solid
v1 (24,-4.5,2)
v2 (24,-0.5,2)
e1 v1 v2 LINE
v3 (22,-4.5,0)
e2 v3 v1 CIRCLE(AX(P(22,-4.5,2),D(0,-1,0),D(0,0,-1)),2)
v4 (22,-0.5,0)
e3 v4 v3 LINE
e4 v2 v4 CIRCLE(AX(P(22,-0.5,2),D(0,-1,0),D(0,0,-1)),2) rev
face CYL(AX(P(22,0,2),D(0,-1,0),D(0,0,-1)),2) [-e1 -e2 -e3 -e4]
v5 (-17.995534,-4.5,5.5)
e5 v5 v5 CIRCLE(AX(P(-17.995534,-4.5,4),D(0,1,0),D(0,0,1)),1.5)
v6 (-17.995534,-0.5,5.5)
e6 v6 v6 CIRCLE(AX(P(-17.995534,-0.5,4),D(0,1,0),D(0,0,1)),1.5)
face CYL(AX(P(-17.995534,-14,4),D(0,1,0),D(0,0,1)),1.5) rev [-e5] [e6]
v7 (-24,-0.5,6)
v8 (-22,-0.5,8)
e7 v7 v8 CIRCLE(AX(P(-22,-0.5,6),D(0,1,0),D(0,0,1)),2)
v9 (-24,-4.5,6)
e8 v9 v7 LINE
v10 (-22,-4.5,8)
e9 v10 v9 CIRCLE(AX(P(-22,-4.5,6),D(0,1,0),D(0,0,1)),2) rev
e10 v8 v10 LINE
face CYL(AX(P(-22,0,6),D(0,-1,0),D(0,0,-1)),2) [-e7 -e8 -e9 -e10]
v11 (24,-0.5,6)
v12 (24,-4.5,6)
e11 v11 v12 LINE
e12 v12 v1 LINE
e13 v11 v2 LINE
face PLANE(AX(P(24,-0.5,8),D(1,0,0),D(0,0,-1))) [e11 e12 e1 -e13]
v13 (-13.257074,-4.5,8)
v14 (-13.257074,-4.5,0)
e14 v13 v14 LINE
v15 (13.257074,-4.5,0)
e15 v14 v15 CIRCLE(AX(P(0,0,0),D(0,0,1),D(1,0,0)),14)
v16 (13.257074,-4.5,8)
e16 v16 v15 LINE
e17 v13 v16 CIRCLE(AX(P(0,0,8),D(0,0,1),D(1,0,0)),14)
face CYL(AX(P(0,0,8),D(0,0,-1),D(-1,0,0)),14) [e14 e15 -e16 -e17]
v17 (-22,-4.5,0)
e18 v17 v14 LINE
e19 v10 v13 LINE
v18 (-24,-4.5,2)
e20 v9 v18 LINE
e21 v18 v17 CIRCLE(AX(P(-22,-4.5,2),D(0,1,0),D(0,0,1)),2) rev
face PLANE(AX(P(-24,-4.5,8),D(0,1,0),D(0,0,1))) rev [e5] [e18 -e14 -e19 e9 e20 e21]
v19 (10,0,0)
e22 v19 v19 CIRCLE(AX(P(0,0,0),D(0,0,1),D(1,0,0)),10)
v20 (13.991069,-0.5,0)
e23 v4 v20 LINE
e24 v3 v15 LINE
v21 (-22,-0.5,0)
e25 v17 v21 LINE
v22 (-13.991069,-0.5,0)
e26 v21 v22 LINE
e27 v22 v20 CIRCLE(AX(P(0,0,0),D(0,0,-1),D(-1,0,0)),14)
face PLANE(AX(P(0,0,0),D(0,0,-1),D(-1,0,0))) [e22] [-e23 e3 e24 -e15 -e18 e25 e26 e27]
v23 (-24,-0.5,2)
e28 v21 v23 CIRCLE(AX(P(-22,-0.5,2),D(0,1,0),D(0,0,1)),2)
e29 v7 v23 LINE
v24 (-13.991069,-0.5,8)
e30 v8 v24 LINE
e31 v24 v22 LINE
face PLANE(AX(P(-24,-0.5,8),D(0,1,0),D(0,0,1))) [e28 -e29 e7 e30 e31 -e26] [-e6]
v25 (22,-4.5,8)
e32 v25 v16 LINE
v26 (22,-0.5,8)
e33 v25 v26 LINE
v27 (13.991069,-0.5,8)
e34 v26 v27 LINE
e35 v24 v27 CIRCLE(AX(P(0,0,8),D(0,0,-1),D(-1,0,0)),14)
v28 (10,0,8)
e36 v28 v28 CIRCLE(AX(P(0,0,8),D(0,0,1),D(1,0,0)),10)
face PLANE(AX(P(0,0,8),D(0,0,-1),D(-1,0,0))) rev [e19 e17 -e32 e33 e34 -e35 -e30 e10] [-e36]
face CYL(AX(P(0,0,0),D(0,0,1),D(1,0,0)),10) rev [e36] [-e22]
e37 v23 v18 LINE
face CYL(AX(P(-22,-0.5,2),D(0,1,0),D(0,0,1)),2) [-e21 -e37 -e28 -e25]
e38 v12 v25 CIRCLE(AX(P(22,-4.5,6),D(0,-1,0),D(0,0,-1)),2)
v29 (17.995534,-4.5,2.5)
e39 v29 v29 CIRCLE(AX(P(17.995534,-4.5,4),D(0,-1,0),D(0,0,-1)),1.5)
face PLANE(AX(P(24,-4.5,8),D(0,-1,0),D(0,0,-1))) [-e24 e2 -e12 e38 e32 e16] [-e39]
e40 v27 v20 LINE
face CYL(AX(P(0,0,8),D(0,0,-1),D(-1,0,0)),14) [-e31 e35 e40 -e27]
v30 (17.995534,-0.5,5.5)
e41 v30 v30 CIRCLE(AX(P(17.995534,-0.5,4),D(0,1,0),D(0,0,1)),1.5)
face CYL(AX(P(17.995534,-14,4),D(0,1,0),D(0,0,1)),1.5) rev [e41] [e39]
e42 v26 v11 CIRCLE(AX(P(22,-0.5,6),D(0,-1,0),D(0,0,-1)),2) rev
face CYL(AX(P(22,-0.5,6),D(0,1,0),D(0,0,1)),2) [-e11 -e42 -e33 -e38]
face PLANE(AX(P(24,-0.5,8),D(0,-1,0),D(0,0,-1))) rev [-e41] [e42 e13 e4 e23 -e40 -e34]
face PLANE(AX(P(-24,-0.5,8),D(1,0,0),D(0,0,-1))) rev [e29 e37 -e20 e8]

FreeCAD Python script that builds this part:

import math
import FreeCAD as App
import Part
import Sketcher

V = App.Vector


def edges_at(feature, points):
    """Names of the edges that pass closest to the given points."""
    edges = feature.Shape.Edges
    near = lambda p: min(range(len(edges)), key=lambda i: edges[i].distToShape(Part.Vertex(*p))[0])
    return sorted({f"Edge{near(p) + 1}" for p in points})

doc = App.newDocument("Part")
body = doc.addObject("PartDesign::Body", "Body")

sketch1 = body.newObject("Sketcher::SketchObject", "Sketch")
sketch1.AttachmentSupport = (doc.getObject("XY_Plane"), [""])
sketch1.MapMode = "FlatFace"
sketch1.addGeometry(Part.LineSegment(V(-14, -0.5, 0), V(-24, -0.5, 0)), False)
sketch1.addGeometry(Part.LineSegment(V(-24, -0.5, 0), V(-24, -4.5, 0)), False)
sketch1.addGeometry(Part.LineSegment(V(-24, -4.5, 0), V(-13.3, -4.5, 0)), False)
sketch1.addGeometry(Part.ArcOfCircle(Part.Circle(V(0, 0, 0), V(0, 0, 1), 14), math.radians(-161), math.radians(-19)), False)
sketch1.addGeometry(Part.LineSegment(V(13.3, -4.5, 0), V(24, -4.5, 0)), False)
sketch1.addGeometry(Part.LineSegment(V(24, -4.5, 0), V(24, -0.5, 0)), False)
sketch1.addGeometry(Part.LineSegment(V(24, -0.5, 0), V(14, -0.5, 0)), False)
sketch1.addGeometry(Part.ArcOfCircle(Part.Circle(V(0, 0, 0), V(0, 0, 1), 14), math.radians(-2), math.radians(182)), False)
sketch1.addConstraint(Sketcher.Constraint("Coincident", 0, 2, 1, 1))
sketch1.addConstraint(Sketcher.Constraint("Coincident", 1, 2, 2, 1))
sketch1.addConstraint(Sketcher.Constraint("Coincident", 2, 2, 3, 1))
sketch1.addConstraint(Sketcher.Constraint("Coincident", 3, 2, 4, 1))
sketch1.addConstraint(Sketcher.Constraint("Coincident", 4, 2, 5, 1))
sketch1.addConstraint(Sketcher.Constraint("Coincident", 5, 2, 6, 1))
sketch1.addConstraint(Sketcher.Constraint("Coincident", 6, 2, 7, 1))
sketch1.addConstraint(Sketcher.Constraint("Coincident", 7, 2, 0, 1))
sketch1.addConstraint(Sketcher.Constraint("Horizontal", 0))
sketch1.addConstraint(Sketcher.Constraint("Vertical", 1))
sketch1.addConstraint(Sketcher.Constraint("Horizontal", 2))
sketch1.addConstraint(Sketcher.Constraint("Horizontal", 4))
sketch1.addConstraint(Sketcher.Constraint("Vertical", 5))
sketch1.addConstraint(Sketcher.Constraint("Horizontal", 6))
sketch1.addConstraint(Sketcher.Constraint("Coincident", 3, 3, -1, 1))
sketch1.addConstraint(Sketcher.Constraint("Coincident", 7, 3, -1, 1))
sketch1.addConstraint(Sketcher.Constraint("Equal", 3, 7))
sketch1.addConstraint(Sketcher.Constraint("Symmetric", 1, 2, 4, 2, -2))
sketch1.addConstraint(Sketcher.Constraint("Horizontal", 0, 2, 5, 2))
sketch1.addConstraint(Sketcher.Constraint("Radius", 3, 14.0))
sketch1.addConstraint(Sketcher.Constraint("DistanceY", 1, 2, 1, 1, 4.0))
sketch1.addConstraint(Sketcher.Constraint("DistanceX", 0, 2, -1, 1, 24.0))
sketch1.addConstraint(Sketcher.Constraint("DistanceY", 0, 2, -1, 1, 0.5))
pad1 = body.newObject("PartDesign::Pad", "Pad")
pad1.Profile = sketch1
pad1.Length = 8

sketch2 = body.newObject("Sketcher::SketchObject", "Sketch001")
sketch2.AttachmentSupport = (doc.getObject("XY_Plane"), [""])
sketch2.MapMode = "FlatFace"
sketch2.AttachmentOffset = App.Placement(V(0, 0, 8), App.Rotation())
sketch2.addGeometry(Part.Circle(V(0, 0, 0), V(0, 0, 1), 10), False)
sketch2.addConstraint(Sketcher.Constraint("Coincident", 0, 3, -1, 1))
sketch2.addConstraint(Sketcher.Constraint("Diameter", 0, 20.0))
pocket1 = body.newObject("PartDesign::Pocket", "Pocket")
pocket1.Profile = sketch2
pocket1.Type = "ThroughAll"
doc.recompute()

fillet = body.newObject("PartDesign::Fillet", "Fillet")
fillet.Base = (pocket1, edges_at(pocket1, [
    (24, -2.5, 8),
    (-24, -2.5, 8),
    (-24, -2.5, 0),
    (24, -2.5, 0),
]))
fillet.Radius = 2

sketch3 = body.newObject("Sketcher::SketchObject", "Sketch002")
sketch3.AttachmentSupport = (doc.getObject("XZ_Plane"), [""])
sketch3.MapMode = "FlatFace"
sketch3.AttachmentOffset = App.Placement(V(0, 0, 0.5), App.Rotation())
sketch3.addGeometry(Part.Circle(V(-18, 4, 0), V(0, 0, 1), 1.5), False)
sketch3.addGeometry(Part.Circle(V(18, 4, 0), V(0, 0, 1), 1.5), False)
sketch3.addConstraint(Sketcher.Constraint("Equal", 0, 1))
sketch3.addConstraint(Sketcher.Constraint("Symmetric", 0, 3, 1, 3, -2))
sketch3.addConstraint(Sketcher.Constraint("Diameter", 0, 3.0))
sketch3.addConstraint(Sketcher.Constraint("DistanceY", -1, 1, 0, 3, 4.0))
sketch3.addConstraint(Sketcher.Constraint("DistanceX", 0, 3, 1, 3, 35.991069))
pocket2 = body.newObject("PartDesign::Pocket", "Pocket001")
pocket2.Profile = sketch3
pocket2.Type = "ThroughAll"
pocket2.Reversed = True

doc.recompute()
